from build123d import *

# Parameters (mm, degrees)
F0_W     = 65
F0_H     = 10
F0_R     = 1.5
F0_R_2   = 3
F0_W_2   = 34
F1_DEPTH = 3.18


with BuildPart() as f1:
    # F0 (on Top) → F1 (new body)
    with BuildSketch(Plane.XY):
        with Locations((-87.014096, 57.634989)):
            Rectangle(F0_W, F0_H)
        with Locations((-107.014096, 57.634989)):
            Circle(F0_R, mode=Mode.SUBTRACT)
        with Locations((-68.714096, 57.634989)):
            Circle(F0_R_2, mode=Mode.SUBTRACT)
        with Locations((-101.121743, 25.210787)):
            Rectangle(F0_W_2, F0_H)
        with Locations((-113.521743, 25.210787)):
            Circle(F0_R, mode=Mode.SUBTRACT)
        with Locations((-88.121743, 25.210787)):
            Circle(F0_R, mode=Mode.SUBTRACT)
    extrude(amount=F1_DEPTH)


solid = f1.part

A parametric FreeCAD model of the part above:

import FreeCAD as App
import Part
import Sketcher

doc = App.newDocument("Part")
body = doc.addObject("PartDesign::Body", "Body")
body.AllowCompound = True

# Sketch on XY plane
sketch1 = body.newObject("Sketcher::SketchObject", "Sketch")
sketch1.AttachmentSupport = (doc.getObject("XY_Plane"), [""])
sketch1.MapMode = "FlatFace"
sketch1.addGeometry([
    Part.LineSegment(App.Vector(-119.5, 62.6, 0), App.Vector(-119.5, 52.6, 0)),  # 0
    Part.LineSegment(App.Vector(-119.5, 52.6, 0), App.Vector(-54.5, 52.6, 0)),  # 1
    Part.LineSegment(App.Vector(-54.5, 52.6, 0), App.Vector(-54.5, 62.6, 0)),  # 2
    Part.LineSegment(App.Vector(-54.5, 62.6, 0), App.Vector(-119.5, 62.6, 0)),  # 3
    Part.Circle(App.Vector(-107, 57.6, 0), App.Vector(0, 0, 1), 1.5),  # 4
    Part.Circle(App.Vector(-68.7, 57.6, 0), App.Vector(0, 0, 1), 3),  # 5
    Part.LineSegment(App.Vector(-118.1, 30.2, 0), App.Vector(-118.1, 20.2, 0)),  # 6
    Part.LineSegment(App.Vector(-118.1, 20.2, 0), App.Vector(-84.1, 20.2, 0)),  # 7
    Part.LineSegment(App.Vector(-84.1, 20.2, 0), App.Vector(-84.1, 30.2, 0)),  # 8
    Part.LineSegment(App.Vector(-84.1, 30.2, 0), App.Vector(-118.1, 30.2, 0)),  # 9
    Part.Circle(App.Vector(-113.5, 25.2, 0), App.Vector(0, 0, 1), 1.5),  # 10
    Part.Circle(App.Vector(-88.1, 25.2, 0), App.Vector(0, 0, 1), 1.5),  # 11
], False)
sketch1.addConstraint([
    Sketcher.Constraint("Coincident", 0, 2, 1, 1),
    Sketcher.Constraint("Coincident", 1, 2, 2, 1),
    Sketcher.Constraint("Coincident", 2, 2, 3, 1),
    Sketcher.Constraint("Coincident", 3, 2, 0, 1),
    Sketcher.Constraint("Coincident", 6, 2, 7, 1),
    Sketcher.Constraint("Coincident", 7, 2, 8, 1),
    Sketcher.Constraint("Coincident", 8, 2, 9, 1),
    Sketcher.Constraint("Coincident", 9, 2, 6, 1),
    Sketcher.Constraint("Vertical", 0),
    Sketcher.Constraint("Horizontal", 1),
    Sketcher.Constraint("Vertical", 2),
    Sketcher.Constraint("Horizontal", 3),
    Sketcher.Constraint("Vertical", 6),
    Sketcher.Constraint("Horizontal", 7),
    Sketcher.Constraint("Vertical", 8),
    Sketcher.Constraint("Horizontal", 9),
    Sketcher.Constraint("Equal", 4, 10),
    Sketcher.Constraint("Equal", 10, 11),
    Sketcher.Constraint("Horizontal", 4, 3, 5, 3),
    Sketcher.Constraint("Horizontal", 10, 3, 11, 3),
    Sketcher.Constraint("Equal", 2, 6),
    Sketcher.Constraint("Diameter", 4, 3.0),
    Sketcher.Constraint("Diameter", 5, 6.0),
    Sketcher.Constraint("DistanceX", 1, 1, 1, 2, 65.0),
    Sketcher.Constraint("DistanceX", 7, 1, 7, 2, 34.0),
    Sketcher.Constraint("DistanceY", 0, 2, 0, 1, 10.0),
    Sketcher.Constraint("DistanceY", 0, 2, 4, 3, 5.0),
    Sketcher.Constraint("DistanceY", 6, 2, 10, 3, 5.0),
    Sketcher.Constraint("DistanceX", 6, 2, 11, 3, 30.0),
    Sketcher.Constraint("DistanceX", 4, 3, 5, 3, 38.3),
    Sketcher.Constraint("DistanceX", 10, 3, 11, 3, 25.4),
    Sketcher.Constraint("DistanceX", 0, 2, 4, 3, 12.5),
    Sketcher.Constraint("DistanceY", 10, 3, 4, 3, 32.424202),
    Sketcher.Constraint("DistanceY", -1, 1, 4, 3, 57.634989),
    Sketcher.Constraint("DistanceX", 4, 3, -1, 1, 107.014096),
    Sketcher.Constraint("DistanceX", 10, 3, -1, 1, 113.521743),
])
pad1 = body.newObject("PartDesign::Pad", "Pad")
pad1.Profile = sketch1
pad1.Length = 3.18

doc.recompute()
